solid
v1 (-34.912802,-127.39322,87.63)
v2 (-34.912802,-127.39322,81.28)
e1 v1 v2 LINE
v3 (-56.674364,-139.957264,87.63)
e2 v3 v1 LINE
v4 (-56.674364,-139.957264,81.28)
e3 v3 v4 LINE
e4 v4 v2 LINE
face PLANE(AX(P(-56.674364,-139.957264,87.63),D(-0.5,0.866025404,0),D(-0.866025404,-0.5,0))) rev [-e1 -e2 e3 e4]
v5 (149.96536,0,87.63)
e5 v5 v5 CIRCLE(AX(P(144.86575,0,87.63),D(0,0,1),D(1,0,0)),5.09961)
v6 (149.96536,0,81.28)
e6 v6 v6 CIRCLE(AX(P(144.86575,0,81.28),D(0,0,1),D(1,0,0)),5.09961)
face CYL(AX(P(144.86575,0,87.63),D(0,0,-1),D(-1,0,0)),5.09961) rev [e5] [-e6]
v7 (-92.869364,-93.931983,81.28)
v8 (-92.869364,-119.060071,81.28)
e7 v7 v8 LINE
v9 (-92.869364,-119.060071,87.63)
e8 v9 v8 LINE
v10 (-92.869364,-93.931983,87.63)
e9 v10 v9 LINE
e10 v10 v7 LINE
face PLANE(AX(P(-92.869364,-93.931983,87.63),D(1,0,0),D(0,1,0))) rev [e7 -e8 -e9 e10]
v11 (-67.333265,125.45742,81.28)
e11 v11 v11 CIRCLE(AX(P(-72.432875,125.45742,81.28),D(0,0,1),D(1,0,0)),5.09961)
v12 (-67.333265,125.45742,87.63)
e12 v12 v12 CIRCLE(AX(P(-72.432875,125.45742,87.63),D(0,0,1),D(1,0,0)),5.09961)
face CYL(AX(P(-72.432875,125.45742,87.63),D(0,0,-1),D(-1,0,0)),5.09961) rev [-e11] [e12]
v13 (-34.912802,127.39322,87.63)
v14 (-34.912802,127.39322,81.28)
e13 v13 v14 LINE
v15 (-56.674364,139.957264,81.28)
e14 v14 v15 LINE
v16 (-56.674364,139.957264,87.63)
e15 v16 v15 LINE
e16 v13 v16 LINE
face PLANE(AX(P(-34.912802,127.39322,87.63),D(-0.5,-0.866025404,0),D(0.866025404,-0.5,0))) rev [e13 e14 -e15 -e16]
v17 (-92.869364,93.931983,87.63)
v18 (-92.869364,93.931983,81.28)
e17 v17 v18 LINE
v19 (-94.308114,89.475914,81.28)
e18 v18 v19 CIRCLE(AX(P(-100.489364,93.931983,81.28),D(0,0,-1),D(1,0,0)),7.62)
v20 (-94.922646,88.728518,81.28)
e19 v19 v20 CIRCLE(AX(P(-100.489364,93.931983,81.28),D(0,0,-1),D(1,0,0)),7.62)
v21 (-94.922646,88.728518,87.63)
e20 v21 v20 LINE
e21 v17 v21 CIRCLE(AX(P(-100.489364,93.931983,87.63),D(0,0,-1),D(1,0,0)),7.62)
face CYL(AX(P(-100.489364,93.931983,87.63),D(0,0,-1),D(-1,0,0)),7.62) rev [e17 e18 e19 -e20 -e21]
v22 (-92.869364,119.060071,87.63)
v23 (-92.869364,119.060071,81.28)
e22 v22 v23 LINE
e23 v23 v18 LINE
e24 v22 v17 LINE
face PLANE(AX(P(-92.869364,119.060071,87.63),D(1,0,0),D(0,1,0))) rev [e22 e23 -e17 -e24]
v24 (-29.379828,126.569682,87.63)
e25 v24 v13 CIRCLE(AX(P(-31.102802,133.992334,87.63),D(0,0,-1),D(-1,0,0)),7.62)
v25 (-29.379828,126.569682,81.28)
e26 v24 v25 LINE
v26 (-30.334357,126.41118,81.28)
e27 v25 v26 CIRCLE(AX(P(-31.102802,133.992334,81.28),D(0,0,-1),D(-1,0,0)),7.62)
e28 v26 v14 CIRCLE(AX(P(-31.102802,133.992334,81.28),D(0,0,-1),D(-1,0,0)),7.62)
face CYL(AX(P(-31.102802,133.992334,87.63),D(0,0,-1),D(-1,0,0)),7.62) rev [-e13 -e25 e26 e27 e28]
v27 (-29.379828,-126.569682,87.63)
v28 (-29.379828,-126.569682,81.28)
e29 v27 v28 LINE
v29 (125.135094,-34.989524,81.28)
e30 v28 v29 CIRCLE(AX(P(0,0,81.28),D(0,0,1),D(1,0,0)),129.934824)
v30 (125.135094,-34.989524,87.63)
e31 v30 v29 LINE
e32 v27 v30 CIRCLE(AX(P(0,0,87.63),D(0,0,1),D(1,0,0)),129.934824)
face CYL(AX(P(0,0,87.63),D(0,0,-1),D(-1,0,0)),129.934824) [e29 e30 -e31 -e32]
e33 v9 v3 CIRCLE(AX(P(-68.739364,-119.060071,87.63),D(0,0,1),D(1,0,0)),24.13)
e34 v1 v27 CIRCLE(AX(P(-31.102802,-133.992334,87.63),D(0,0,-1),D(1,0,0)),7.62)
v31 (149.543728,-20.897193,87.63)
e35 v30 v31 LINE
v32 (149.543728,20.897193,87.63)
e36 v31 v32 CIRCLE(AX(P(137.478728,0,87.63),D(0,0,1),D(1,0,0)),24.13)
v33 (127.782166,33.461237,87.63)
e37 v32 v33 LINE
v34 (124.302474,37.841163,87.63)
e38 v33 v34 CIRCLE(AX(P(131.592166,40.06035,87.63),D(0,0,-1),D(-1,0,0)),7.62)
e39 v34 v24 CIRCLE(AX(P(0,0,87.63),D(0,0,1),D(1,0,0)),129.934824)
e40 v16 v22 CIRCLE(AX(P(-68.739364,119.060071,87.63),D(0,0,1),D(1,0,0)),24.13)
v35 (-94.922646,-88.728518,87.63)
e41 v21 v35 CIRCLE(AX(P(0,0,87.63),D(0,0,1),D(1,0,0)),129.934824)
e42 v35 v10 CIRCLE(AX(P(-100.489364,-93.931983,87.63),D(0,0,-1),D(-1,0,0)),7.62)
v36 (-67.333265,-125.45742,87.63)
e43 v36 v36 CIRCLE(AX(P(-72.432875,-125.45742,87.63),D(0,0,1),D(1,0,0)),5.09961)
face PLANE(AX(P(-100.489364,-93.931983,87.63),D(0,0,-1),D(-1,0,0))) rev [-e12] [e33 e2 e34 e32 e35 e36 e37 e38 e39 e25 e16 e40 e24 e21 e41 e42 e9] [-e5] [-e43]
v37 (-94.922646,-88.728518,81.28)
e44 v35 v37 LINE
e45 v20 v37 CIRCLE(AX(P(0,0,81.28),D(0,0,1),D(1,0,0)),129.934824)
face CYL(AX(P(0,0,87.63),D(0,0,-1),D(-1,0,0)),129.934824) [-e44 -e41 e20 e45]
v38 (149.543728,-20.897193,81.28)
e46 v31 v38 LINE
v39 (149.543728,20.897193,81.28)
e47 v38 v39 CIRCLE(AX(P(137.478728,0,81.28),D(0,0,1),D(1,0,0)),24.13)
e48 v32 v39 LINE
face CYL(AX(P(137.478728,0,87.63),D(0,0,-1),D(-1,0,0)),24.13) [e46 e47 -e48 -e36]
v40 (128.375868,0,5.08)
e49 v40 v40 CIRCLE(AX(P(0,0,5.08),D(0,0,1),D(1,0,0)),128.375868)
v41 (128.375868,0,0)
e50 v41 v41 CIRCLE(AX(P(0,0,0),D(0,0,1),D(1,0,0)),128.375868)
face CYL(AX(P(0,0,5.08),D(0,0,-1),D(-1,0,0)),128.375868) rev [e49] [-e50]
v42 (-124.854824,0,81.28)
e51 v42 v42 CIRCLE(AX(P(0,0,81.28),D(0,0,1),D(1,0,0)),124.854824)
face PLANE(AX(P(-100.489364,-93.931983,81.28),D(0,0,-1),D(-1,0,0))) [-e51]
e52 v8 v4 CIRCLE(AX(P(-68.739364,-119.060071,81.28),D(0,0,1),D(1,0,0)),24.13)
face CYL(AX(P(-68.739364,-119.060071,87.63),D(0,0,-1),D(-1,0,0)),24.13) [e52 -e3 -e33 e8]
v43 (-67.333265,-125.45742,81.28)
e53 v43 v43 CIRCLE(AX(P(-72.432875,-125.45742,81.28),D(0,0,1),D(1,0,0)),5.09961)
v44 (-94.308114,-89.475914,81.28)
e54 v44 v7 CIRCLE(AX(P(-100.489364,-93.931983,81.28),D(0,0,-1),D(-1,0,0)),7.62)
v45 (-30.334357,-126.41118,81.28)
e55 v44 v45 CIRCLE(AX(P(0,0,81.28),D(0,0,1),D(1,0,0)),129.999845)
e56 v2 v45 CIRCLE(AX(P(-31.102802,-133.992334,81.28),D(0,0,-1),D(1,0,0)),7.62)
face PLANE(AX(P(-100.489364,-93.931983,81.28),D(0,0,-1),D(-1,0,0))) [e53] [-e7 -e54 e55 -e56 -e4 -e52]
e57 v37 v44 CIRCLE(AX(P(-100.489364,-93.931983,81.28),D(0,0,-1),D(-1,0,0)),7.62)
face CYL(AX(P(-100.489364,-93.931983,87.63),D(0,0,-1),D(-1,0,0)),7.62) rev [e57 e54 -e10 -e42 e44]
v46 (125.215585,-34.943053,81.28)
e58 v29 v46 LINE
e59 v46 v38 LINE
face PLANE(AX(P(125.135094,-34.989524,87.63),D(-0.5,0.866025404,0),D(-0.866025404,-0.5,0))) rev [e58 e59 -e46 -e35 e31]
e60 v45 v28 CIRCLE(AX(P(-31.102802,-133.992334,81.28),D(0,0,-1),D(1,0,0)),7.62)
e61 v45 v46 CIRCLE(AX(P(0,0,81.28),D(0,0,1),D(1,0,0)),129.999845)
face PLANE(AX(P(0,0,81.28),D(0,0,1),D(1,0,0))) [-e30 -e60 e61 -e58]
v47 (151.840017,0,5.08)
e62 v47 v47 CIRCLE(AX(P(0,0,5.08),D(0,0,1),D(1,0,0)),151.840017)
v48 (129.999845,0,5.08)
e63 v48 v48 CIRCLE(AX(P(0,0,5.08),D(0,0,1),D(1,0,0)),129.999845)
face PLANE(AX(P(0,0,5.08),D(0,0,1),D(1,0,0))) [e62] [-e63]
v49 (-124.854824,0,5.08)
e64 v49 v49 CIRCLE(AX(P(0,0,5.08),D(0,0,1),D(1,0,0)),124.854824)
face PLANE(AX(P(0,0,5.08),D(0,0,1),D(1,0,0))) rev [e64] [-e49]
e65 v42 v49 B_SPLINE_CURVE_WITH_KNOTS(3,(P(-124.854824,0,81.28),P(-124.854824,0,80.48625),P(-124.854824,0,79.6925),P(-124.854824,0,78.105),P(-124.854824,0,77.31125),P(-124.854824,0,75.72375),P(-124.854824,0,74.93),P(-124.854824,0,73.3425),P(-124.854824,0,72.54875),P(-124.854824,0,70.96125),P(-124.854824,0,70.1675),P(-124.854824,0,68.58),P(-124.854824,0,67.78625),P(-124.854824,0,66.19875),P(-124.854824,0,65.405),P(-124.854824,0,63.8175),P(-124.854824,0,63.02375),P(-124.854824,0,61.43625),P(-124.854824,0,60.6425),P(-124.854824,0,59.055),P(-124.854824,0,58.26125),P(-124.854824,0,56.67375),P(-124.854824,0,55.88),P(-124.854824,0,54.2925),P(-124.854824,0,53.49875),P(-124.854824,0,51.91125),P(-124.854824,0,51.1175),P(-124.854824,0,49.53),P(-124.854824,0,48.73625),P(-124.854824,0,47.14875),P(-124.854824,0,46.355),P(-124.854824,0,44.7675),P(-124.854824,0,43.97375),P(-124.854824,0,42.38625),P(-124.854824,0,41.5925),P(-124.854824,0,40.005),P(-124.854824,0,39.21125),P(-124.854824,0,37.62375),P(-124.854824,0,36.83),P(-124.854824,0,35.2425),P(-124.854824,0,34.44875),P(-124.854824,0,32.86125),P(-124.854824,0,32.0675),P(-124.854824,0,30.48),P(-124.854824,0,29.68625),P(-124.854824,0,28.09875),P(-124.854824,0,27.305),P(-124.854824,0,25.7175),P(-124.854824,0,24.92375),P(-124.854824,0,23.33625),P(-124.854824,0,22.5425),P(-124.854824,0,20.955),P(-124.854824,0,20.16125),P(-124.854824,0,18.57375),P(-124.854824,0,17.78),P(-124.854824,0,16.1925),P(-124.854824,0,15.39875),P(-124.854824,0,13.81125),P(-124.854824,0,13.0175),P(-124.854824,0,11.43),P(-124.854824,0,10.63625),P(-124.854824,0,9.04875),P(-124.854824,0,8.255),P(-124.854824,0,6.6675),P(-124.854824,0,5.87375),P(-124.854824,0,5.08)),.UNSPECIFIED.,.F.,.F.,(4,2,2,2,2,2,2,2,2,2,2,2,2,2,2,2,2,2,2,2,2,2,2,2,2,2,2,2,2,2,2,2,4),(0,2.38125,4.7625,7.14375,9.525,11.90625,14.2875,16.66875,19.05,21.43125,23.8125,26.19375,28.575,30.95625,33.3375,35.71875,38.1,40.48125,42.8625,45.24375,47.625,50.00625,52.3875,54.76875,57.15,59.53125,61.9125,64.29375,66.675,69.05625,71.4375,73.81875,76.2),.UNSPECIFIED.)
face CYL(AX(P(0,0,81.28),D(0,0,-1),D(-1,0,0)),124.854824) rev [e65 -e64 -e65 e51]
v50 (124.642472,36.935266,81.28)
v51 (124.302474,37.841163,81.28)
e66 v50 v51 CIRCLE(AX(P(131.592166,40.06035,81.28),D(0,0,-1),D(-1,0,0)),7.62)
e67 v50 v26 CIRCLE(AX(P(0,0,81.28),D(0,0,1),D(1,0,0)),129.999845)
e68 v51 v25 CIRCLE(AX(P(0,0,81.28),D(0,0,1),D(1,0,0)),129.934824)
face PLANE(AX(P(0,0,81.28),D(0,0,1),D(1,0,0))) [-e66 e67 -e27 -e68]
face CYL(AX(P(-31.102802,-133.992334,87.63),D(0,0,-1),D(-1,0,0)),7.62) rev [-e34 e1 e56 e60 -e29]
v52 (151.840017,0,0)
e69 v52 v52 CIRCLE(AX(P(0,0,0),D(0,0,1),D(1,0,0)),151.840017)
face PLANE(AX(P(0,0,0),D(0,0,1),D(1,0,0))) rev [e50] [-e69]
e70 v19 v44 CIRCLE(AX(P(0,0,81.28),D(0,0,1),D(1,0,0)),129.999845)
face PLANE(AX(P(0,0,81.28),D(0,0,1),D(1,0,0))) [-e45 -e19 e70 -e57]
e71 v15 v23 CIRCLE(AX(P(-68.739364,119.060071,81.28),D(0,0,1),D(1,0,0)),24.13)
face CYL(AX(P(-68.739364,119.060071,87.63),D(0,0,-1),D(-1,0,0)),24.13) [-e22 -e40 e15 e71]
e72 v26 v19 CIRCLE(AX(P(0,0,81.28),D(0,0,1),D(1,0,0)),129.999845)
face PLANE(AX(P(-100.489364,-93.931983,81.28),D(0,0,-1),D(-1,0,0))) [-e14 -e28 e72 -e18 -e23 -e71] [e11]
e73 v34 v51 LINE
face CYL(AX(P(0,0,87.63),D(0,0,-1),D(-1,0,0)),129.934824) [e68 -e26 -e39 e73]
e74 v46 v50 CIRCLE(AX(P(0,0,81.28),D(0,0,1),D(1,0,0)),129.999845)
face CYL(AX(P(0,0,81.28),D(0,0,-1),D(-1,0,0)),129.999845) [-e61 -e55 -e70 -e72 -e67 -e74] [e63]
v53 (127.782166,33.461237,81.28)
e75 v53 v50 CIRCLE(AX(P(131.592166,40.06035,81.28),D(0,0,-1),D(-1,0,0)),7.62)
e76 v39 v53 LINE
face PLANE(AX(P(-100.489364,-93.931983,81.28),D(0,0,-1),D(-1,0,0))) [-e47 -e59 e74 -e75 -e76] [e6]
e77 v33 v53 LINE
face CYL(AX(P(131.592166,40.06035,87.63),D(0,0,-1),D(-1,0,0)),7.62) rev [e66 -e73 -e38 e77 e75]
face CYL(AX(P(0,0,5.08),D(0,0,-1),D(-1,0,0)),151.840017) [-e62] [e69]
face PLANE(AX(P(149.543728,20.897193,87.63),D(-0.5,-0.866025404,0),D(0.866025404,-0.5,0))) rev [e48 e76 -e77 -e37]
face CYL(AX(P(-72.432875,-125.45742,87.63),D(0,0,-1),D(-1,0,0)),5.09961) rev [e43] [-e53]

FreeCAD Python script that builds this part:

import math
import FreeCAD as App
import Part
import Sketcher

V = App.Vector
Q = App.Units.Quantity

doc = App.newDocument("Part")
body = doc.addObject("PartDesign::Body", "Body")

sketch1 = doc.addObject("Sketcher::SketchObject", "Sketch")
body.addObject(sketch1)
sketch1.AttachmentSupport = (doc.XY_Plane, [""])
sketch1.MapMode = "FlatFace"
sketch1.addGeometry([
    Part.Circle(V(0, 0, 0), V(0, 0, 1), 151.840017),
    Part.Circle(V(0, 0, 0), V(0, 0, 1), 128.375868),
], False)
sketch1.addConstraint([
    Sketcher.Constraint("Coincident", 0, 3, -1, 1),
    Sketcher.Constraint("Coincident", 1, 3, -1, 1),
    Sketcher.Constraint("Diameter", 0, 303.680033),
    Sketcher.Constraint("Diameter", 1, 256.751736),
])
pad1 = doc.addObject("PartDesign::Pad", "Pad")
body.addObject(pad1)
pad1.Profile = sketch1
pad1.Length = Q("0.2 in")

sketch2 = doc.addObject("Sketcher::SketchObject", "Sketch001")
body.addObject(sketch2)
sketch2.AttachmentSupport = (doc.XY_Plane, [""])
sketch2.MapMode = "FlatFace"
sketch2.AttachmentOffset = App.Placement(V(0, 0, 0.2 * 25.4), App.Rotation())
sketch2.addGeometry([
    Part.Circle(V(0, 0, 0), V(0, 0, 1), 129.999845),
    Part.Circle(V(0, 0, 0), V(0, 0, 1), 124.854824),
], False)
sketch2.addConstraint([
    Sketcher.Constraint("Coincident", 0, 3, -1, 1),
    Sketcher.Constraint("Coincident", 1, 3, -1, 1),
    Sketcher.Constraint("Diameter", 0, 259.999689),
    Sketcher.Constraint("Diameter", 1, 249.709649),
])
pad2 = doc.addObject("PartDesign::Pad", "Pad001")
body.addObject(pad2)
pad2.Profile = sketch2
pad2.Length = Q("3 in")

sketch3 = doc.addObject("Sketcher::SketchObject", "Sketch002")
body.addObject(sketch3)
sketch3.AttachmentSupport = (doc.XY_Plane, [""])
sketch3.MapMode = "FlatFace"
sketch3.AttachmentOffset = App.Placement(V(0, 0, 3.2 * 25.4), App.Rotation())
sketch3.addGeometry([
    Part.LineSegment(V(-92.869364, -93.931983, 0), V(-92.869364, -119.060071, 0)),
    Part.ArcOfCircle(Part.Circle(V(-68.739364, -119.060071, 0), V(0, 0, 1), 24.13), math.radians(180), math.radians(300)),
    Part.LineSegment(V(-56.674364, -139.957264, 0), V(-34.912802, -127.39322, 0)),
    Part.ArcOfCircle(Part.Circle(V(-31.102802, -133.992334, 0), V(0, 0, 1), 7.62), math.radians(76.931721), math.radians(120)),
    Part.ArcOfCircle(Part.Circle(V(0, 0, 0), V(0, 0, 1), 129.934824), math.radians(-103.068279), math.radians(-15.621736)),
    Part.LineSegment(V(125.135094, -34.989524, 0), V(149.543728, -20.897193, 0)),
    Part.ArcOfCircle(Part.Circle(V(137.478728, 0, 0), V(0, 0, 1), 24.13), math.radians(-60), math.radians(60)),
    Part.LineSegment(V(149.543728, 20.897193, 0), V(127.782166, 33.461237, 0)),
    Part.ArcOfCircle(Part.Circle(V(131.592166, 40.06035, 0), V(0, 0, 1), 7.62), math.radians(-163.068279), math.radians(-120)),
    Part.ArcOfCircle(Part.Circle(V(0, 0, 0), V(0, 0, 1), 129.934824), math.radians(16.931721), math.radians(103.068279)),
    Part.ArcOfCircle(Part.Circle(V(-31.102802, 133.992334, 0), V(0, 0, 1), 7.62), math.radians(-120), math.radians(-76.931721)),
    Part.LineSegment(V(-34.912802, 127.39322, 0), V(-56.674364, 139.957264, 0)),
    Part.ArcOfCircle(Part.Circle(V(-68.739364, 119.060071, 0), V(0, 0, 1), 24.13), math.radians(60), math.radians(180)),
    Part.LineSegment(V(-92.869364, 119.060071, 0), V(-92.869364, 93.931983, 0)),
    Part.ArcOfCircle(Part.Circle(V(-100.489364, 93.931983, 0), V(0, 0, 1), 7.62), math.radians(-43.068279), math.radians(0)),
    Part.ArcOfCircle(Part.Circle(V(0, 0, 0), V(0, 0, 1), 129.934824), math.radians(136.931721), math.radians(223.068279)),
    Part.ArcOfCircle(Part.Circle(V(-100.489364, -93.931983, 0), V(0, 0, 1), 7.62), math.radians(0), math.radians(43.068279)),
    Part.Circle(V(-72.432875, -125.45742, 0), V(0, 0, 1), 5.09961),
    Part.Circle(V(-72.432875, 125.45742, 0), V(0, 0, 1), 5.09961),
    Part.Circle(V(144.86575, 0, 0), V(0, 0, 1), 5.09961),
], False)
sketch3.addConstraint([
    Sketcher.Constraint("Tangent", 0, 2, 1, 1),
    Sketcher.Constraint("Tangent", 1, 2, 2, 1),
    Sketcher.Constraint("Tangent", 2, 2, 3, 2),
    Sketcher.Constraint("Tangent", 3, 1, 4, 1),
    Sketcher.Constraint("Coincident", 4, 2, 5, 1),
    Sketcher.Constraint("Tangent", 5, 2, 6, 1),
    Sketcher.Constraint("Tangent", 6, 2, 7, 1),
    Sketcher.Constraint("Tangent", 7, 2, 8, 2),
    Sketcher.Constraint("Tangent", 8, 1, 9, 1),
    Sketcher.Constraint("Tangent", 9, 2, 10, 2),
    Sketcher.Constraint("Tangent", 10, 1, 11, 1),
    Sketcher.Constraint("Tangent", 11, 2, 12, 1),
    Sketcher.Constraint("Tangent", 12, 2, 13, 1),
    Sketcher.Constraint("Tangent", 13, 2, 14, 2),
    Sketcher.Constraint("Tangent", 14, 1, 15, 1),
    Sketcher.Constraint("Tangent", 15, 2, 16, 2),
    Sketcher.Constraint("Tangent", 16, 1, 0, 1),
    Sketcher.Constraint("Vertical", 0),
    Sketcher.Constraint("Vertical", 13),
    Sketcher.Constraint("Coincident", 4, 3, -1, 1),
    Sketcher.Constraint("Coincident", 9, 3, -1, 1),
    Sketcher.Constraint("Coincident", 15, 3, -1, 1),
    Sketcher.Constraint("Equal", 1, 6),
    Sketcher.Constraint("Equal", 3, 8),
    Sketcher.Constraint("Equal", 4, 9),
    Sketcher.Constraint("Equal", 8, 10),
    Sketcher.Constraint("Equal", 6, 12),
    Sketcher.Constraint("Equal", 10, 14),
    Sketcher.Constraint("Equal", 9, 15),
    Sketcher.Constraint("Equal", 14, 16),
    Sketcher.Constraint("Equal", 17, 18),
    Sketcher.Constraint("Equal", 18, 19),
    Sketcher.Constraint("Symmetric", 1, 3, 12, 3, -1),
    Sketcher.Constraint("Symmetric", 17, 3, 18, 3, -1),
    Sketcher.Constraint("Symmetric", 5, 2, 6, 2, -1),
    Sketcher.Constraint("PointOnObject", 19, 3, -1),
    Sketcher.Constraint("Parallel", 2, 5),
    Sketcher.Constraint("Parallel", 7, 11),
    Sketcher.Constraint("Equal", 2, 7),
    Sketcher.Constraint("Radius", 3, Q("0.3 in")),
    Sketcher.Constraint("Radius", 1, Q("0.95 in")),
    Sketcher.Constraint("Angle", 2, Q("30 deg")),
    Sketcher.Constraint("Diameter", 17, 10.199219),
    Sketcher.Constraint("Radius", 4, 129.934824),
    Sketcher.Constraint("DistanceX", 3, 3, -1, 1, 31.102802),
    Sketcher.Constraint("DistanceY", 2, 2, 17, 3, 1.9358),
    Sketcher.Constraint("DistanceY", 14, 3, 9, 2, 32.637698),
    Sketcher.Constraint("DistanceX", -1, 1, 19, 3, 144.86575),
    Sketcher.Constraint("DistanceX", 17, 3, 1, 3, 3.693511),
])
pad3 = doc.addObject("PartDesign::Pad", "Pad002")
body.addObject(pad3)
pad3.Profile = sketch3
pad3.Length = Q("0.25 in")

doc.recompute()
